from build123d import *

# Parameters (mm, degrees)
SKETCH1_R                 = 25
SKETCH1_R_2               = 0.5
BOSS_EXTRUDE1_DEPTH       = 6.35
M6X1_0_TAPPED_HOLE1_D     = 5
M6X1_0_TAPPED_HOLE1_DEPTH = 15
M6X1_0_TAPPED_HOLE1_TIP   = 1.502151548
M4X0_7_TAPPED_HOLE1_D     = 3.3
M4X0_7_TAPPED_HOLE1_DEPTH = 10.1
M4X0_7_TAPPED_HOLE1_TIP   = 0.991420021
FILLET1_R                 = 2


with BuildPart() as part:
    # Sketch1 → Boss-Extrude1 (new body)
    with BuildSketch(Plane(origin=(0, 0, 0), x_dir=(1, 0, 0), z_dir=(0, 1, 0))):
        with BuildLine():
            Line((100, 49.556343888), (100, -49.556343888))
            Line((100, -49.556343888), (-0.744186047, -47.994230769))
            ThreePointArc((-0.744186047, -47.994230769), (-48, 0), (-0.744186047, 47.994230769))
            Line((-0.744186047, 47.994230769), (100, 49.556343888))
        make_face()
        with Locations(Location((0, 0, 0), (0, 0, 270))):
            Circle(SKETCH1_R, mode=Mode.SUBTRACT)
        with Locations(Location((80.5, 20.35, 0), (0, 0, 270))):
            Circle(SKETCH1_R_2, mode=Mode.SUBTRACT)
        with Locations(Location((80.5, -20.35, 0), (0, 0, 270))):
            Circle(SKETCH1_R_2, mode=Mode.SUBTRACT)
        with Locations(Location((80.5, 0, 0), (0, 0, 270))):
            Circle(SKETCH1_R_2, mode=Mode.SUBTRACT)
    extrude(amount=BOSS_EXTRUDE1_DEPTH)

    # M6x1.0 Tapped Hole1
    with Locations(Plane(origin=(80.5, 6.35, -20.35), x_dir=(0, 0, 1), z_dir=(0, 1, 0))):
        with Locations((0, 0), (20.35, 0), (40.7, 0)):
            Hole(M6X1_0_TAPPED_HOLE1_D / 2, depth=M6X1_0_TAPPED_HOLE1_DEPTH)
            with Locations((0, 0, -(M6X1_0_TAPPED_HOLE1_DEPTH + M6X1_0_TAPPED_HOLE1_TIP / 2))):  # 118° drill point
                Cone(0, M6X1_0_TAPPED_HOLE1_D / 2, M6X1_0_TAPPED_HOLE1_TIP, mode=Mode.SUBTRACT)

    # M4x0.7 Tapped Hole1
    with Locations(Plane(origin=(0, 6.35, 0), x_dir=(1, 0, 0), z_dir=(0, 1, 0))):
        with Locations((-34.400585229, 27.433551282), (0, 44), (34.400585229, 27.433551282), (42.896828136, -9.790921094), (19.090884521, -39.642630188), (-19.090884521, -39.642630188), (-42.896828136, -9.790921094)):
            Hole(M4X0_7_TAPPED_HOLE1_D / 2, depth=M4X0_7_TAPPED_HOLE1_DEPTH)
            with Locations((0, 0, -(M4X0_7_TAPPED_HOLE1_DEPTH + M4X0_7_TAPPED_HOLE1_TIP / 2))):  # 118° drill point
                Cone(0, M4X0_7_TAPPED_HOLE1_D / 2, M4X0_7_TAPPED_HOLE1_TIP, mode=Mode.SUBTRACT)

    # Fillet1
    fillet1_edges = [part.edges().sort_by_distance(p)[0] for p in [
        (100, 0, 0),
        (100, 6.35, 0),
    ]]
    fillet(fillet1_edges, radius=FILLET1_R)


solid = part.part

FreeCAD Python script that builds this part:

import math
import FreeCAD as App
import Part
import Sketcher
from FreeCAD import Vector
Q = App.Units.Quantity


def edges_at(feature, points):
    """Names of the edges that pass closest to the given points."""
    edges = feature.Shape.Edges
    near = lambda p: min(range(len(edges)), key=lambda i: edges[i].distToShape(Part.Vertex(*p))[0])
    return sorted({f"Edge{near(p) + 1}" for p in points})

doc = App.newDocument("Part")
params = doc.addObject("Spreadsheet::Sheet", "Params")
for row, (alias, value) in enumerate([
    ("sketch1_diameter", "1 mm"),
    ("sketch1_diameter2", "50 mm"),
    ("sketch1_radius", "48 mm"),
    ("pad1_length", "6.35 mm"),
    ("sketch2_diameter", "5 mm"),
    ("hole_diameter", "5 mm"),
    ("hole_depth", "15 mm"),
    ("sketch3_diameter", "3.3 mm"),
    ("hole2_diameter", "3.3 mm"),
    ("hole2_depth", "10.1 mm"),
    ("fillet_radius", "2 mm"),
], start=1):
    params.set(f"A{row}", alias)
    params.set(f"B{row}", "=" + value)
    params.setAlias(f"B{row}", alias)

body = doc.addObject("PartDesign::Body", "Body")

# Sketch on XZ plane
sketch1 = doc.addObject("Sketcher::SketchObject", "Sketch")
body.addObject(sketch1)
sketch1.AttachmentSupport = (doc.XZ_Plane, [""])
sketch1.MapMode = "FlatFace"
sketch1.addGeometry(Part.LineSegment(Vector(100, 49.6, 0), Vector(100, -49.6, 0)), False)
sketch1.addGeometry(Part.LineSegment(Vector(100, -49.6, 0), Vector(-0.7, -48, 0)), False)
sketch1.addGeometry(Part.ArcOfCircle(Part.Circle(Vector(0, 0, 0), Vector(0, 0, 1), 48), math.radians(91), math.radians(269)), False)
sketch1.addGeometry(Part.LineSegment(Vector(-0.7, 48, 0), Vector(100, 49.6, 0)), False)
sketch1.addGeometry(Part.Circle(Vector(80.5, 20.4, 0), Vector(0, 0, 1), 0.5), False)
sketch1.addGeometry(Part.Circle(Vector(80.5, 0, 0), Vector(0, 0, 1), 0.5), False)
sketch1.addGeometry(Part.Circle(Vector(80.5, -20.4, 0), Vector(0, 0, 1), 0.5), False)
sketch1.addGeometry(Part.Circle(Vector(0, 0, 0), Vector(0, 0, 1), 25), False)
sketch1.addConstraint(Sketcher.Constraint("Coincident", 0, 2, 1, 1))
sketch1.addConstraint(Sketcher.Constraint("Tangent", 1, 2, 2, 2))
sketch1.addConstraint(Sketcher.Constraint("Tangent", 2, 1, 3, 1))
sketch1.addConstraint(Sketcher.Constraint("Coincident", 3, 2, 0, 1))
sketch1.addConstraint(Sketcher.Constraint("Vertical", 0))
sketch1.addConstraint(Sketcher.Constraint("Coincident", 2, 3, -1, 1))
sketch1.addConstraint(Sketcher.Constraint("Coincident", 7, 3, -1, 1))
sketch1.addConstraint(Sketcher.Constraint("Equal", 4, 5))
sketch1.addConstraint(Sketcher.Constraint("Equal", 5, 6))
sketch1.addConstraint(Sketcher.Constraint("Symmetric", 4, 3, 6, 3, -1))
sketch1.addConstraint(Sketcher.Constraint("PointOnObject", 5, 3, -1))
sketch1.addConstraint(Sketcher.Constraint("Vertical", 4, 3, 5, 3))
sketch1.addConstraint(Sketcher.Constraint("Vertical", 1, 2, 2, 1))
sketch1.addConstraint(Sketcher.Constraint("Diameter", 4, Q("1 mm")))
sketch1.addConstraint(Sketcher.Constraint("Diameter", 7, Q("50 mm")))
sketch1.addConstraint(Sketcher.Constraint("Radius", 2, Q("48 mm")))
sketch1.addConstraint(Sketcher.Constraint("DistanceX", -1, 1, 0, 2, Q("100 mm")))
sketch1.addConstraint(Sketcher.Constraint("DistanceX", -1, 1, 4, 3, Q("80.5 mm")))
sketch1.addConstraint(Sketcher.Constraint("DistanceY", 6, 3, 4, 3, Q("40.7 mm")))
sketch1.addConstraint(Sketcher.Constraint("DistanceY", 0, 2, 0, 1, Q("99.112688 mm")))
sketch1.setExpression("Constraints[13]", "Params.sketch1_diameter")
sketch1.setExpression("Constraints[14]", "Params.sketch1_diameter2")
sketch1.setExpression("Constraints[15]", "Params.sketch1_radius")
pad1 = doc.addObject("PartDesign::Pad", "Pad")
body.addObject(pad1)
pad1.Profile = sketch1
pad1.setExpression("Length", "Params.pad1_length")
pad1.Reversed = True

# Sketch on XZ plane
sketch2 = doc.addObject("Sketcher::SketchObject", "Sketch001")
body.addObject(sketch2)
sketch2.AttachmentSupport = (doc.XZ_Plane, [""])
sketch2.MapMode = "FlatFace"
sketch2.AttachmentOffset = App.Placement(Vector(0, 0, -6.35), App.Rotation())
sketch2.addGeometry(Part.Circle(Vector(80.5, -20.4, 0), Vector(0, 0, 1), 2.5), False)
sketch2.addGeometry(Part.Circle(Vector(80.5, 0, 0), Vector(0, 0, 1), 2.5), False)
sketch2.addGeometry(Part.Circle(Vector(80.5, 20.4, 0), Vector(0, 0, 1), 2.5), False)
sketch2.addConstraint(Sketcher.Constraint("Equal", 0, 1))
sketch2.addConstraint(Sketcher.Constraint("Equal", 1, 2))
sketch2.addConstraint(Sketcher.Constraint("Symmetric", 0, 3, 2, 3, -1))
sketch2.addConstraint(Sketcher.Constraint("PointOnObject", 1, 3, -1))
sketch2.addConstraint(Sketcher.Constraint("Vertical", 0, 3, 1, 3))
sketch2.addConstraint(Sketcher.Constraint("Diameter", 0, Q("5 mm")))
sketch2.addConstraint(Sketcher.Constraint("DistanceX", -1, 1, 0, 3, Q("80.5 mm")))
sketch2.addConstraint(Sketcher.Constraint("DistanceY", 0, 3, 2, 3, Q("40.7 mm")))
sketch2.setExpression("Constraints[5]", "Params.sketch2_diameter")
doc.recompute()
hole = doc.addObject("PartDesign::Hole", "Hole")
body.addObject(hole)
hole.Profile = sketch2
hole.ThreadType = "None"
hole.setExpression("Diameter", "Params.hole_diameter")
hole.DepthType = "Dimension"
hole.setExpression("Depth", "Params.hole_depth")
hole.DrillPoint = "Angled"
hole.DrillPointAngle = 118
hole.Reversed = True

# Sketch on XZ plane
sketch3 = doc.addObject("Sketcher::SketchObject", "Sketch002")
body.addObject(sketch3)
sketch3.AttachmentSupport = (doc.XZ_Plane, [""])
sketch3.MapMode = "FlatFace"
sketch3.AttachmentOffset = App.Placement(Vector(0, 0, -6.35), App.Rotation())
sketch3.addGeometry(Part.Circle(Vector(-34.4, -27.4, 0), Vector(0, 0, 1), 1.6), False)
sketch3.addGeometry(Part.Circle(Vector(0, -44, 0), Vector(0, 0, 1), 1.6), False)
sketch3.addGeometry(Part.Circle(Vector(34.4, -27.4, 0), Vector(0, 0, 1), 1.6), False)
sketch3.addGeometry(Part.Circle(Vector(42.9, 9.8, 0), Vector(0, 0, 1), 1.6), False)
sketch3.addGeometry(Part.Circle(Vector(19.1, 39.6, 0), Vector(0, 0, 1), 1.6), False)
sketch3.addGeometry(Part.Circle(Vector(-19.1, 39.6, 0), Vector(0, 0, 1), 1.6), False)
sketch3.addGeometry(Part.Circle(Vector(-42.9, 9.8, 0), Vector(0, 0, 1), 1.6), False)
sketch3.addConstraint(Sketcher.Constraint("Equal", 0, 1))
sketch3.addConstraint(Sketcher.Constraint("Equal", 1, 2))
sketch3.addConstraint(Sketcher.Constraint("Equal", 2, 3))
sketch3.addConstraint(Sketcher.Constraint("Equal", 3, 4))
sketch3.addConstraint(Sketcher.Constraint("Equal", 4, 5))
sketch3.addConstraint(Sketcher.Constraint("Equal", 5, 6))
sketch3.addConstraint(Sketcher.Constraint("Symmetric", 0, 3, 2, 3, -2))
sketch3.addConstraint(Sketcher.Constraint("Symmetric", 4, 3, 5, 3, -2))
sketch3.addConstraint(Sketcher.Constraint("Symmetric", 3, 3, 6, 3, -2))
sketch3.addConstraint(Sketcher.Constraint("PointOnObject", 1, 3, -2))
sketch3.addConstraint(Sketcher.Constraint("Diameter", 0, Q("3.3 mm")))
sketch3.addConstraint(Sketcher.Constraint("DistanceY", 1, 3, -1, 1, Q("44 mm")))
sketch3.addConstraint(Sketcher.Constraint("DistanceX", 4, 3, 2, 3, Q("15.309701 mm")))
sketch3.addConstraint(Sketcher.Constraint("DistanceY", 0, 3, -1, 1, Q("27.433551 mm")))
sketch3.addConstraint(Sketcher.Constraint("DistanceX", -1, 1, 3, 3, Q("42.896828 mm")))
sketch3.addConstraint(Sketcher.Constraint("DistanceY", -1, 1, 3, 3, Q("9.790921 mm")))
sketch3.addConstraint(Sketcher.Constraint("DistanceY", -1, 1, 4, 3, Q("39.64263 mm")))
sketch3.addConstraint(Sketcher.Constraint("DistanceX", 0, 3, 2, 3, Q("68.80117 mm")))
sketch3.setExpression("Constraints[10]", "Params.sketch3_diameter")
doc.recompute()
hole2 = doc.addObject("PartDesign::Hole", "Hole001")
body.addObject(hole2)
hole2.Profile = sketch3
hole2.ThreadType = "None"
hole2.setExpression("Diameter", "Params.hole2_diameter")
hole2.DepthType = "Dimension"
hole2.setExpression("Depth", "Params.hole2_depth")
hole2.DrillPoint = "Angled"
hole2.DrillPointAngle = 118
hole2.Reversed = True
doc.recompute()

fillet = doc.addObject("PartDesign::Fillet", "Fillet")
body.addObject(fillet)
fillet.Base = (hole2, edges_at(hole2, [(100, 0, 0), (100, 6.35, 0)]))
fillet.setExpression("Radius", "Params.fillet_radius")

doc.recompute()
